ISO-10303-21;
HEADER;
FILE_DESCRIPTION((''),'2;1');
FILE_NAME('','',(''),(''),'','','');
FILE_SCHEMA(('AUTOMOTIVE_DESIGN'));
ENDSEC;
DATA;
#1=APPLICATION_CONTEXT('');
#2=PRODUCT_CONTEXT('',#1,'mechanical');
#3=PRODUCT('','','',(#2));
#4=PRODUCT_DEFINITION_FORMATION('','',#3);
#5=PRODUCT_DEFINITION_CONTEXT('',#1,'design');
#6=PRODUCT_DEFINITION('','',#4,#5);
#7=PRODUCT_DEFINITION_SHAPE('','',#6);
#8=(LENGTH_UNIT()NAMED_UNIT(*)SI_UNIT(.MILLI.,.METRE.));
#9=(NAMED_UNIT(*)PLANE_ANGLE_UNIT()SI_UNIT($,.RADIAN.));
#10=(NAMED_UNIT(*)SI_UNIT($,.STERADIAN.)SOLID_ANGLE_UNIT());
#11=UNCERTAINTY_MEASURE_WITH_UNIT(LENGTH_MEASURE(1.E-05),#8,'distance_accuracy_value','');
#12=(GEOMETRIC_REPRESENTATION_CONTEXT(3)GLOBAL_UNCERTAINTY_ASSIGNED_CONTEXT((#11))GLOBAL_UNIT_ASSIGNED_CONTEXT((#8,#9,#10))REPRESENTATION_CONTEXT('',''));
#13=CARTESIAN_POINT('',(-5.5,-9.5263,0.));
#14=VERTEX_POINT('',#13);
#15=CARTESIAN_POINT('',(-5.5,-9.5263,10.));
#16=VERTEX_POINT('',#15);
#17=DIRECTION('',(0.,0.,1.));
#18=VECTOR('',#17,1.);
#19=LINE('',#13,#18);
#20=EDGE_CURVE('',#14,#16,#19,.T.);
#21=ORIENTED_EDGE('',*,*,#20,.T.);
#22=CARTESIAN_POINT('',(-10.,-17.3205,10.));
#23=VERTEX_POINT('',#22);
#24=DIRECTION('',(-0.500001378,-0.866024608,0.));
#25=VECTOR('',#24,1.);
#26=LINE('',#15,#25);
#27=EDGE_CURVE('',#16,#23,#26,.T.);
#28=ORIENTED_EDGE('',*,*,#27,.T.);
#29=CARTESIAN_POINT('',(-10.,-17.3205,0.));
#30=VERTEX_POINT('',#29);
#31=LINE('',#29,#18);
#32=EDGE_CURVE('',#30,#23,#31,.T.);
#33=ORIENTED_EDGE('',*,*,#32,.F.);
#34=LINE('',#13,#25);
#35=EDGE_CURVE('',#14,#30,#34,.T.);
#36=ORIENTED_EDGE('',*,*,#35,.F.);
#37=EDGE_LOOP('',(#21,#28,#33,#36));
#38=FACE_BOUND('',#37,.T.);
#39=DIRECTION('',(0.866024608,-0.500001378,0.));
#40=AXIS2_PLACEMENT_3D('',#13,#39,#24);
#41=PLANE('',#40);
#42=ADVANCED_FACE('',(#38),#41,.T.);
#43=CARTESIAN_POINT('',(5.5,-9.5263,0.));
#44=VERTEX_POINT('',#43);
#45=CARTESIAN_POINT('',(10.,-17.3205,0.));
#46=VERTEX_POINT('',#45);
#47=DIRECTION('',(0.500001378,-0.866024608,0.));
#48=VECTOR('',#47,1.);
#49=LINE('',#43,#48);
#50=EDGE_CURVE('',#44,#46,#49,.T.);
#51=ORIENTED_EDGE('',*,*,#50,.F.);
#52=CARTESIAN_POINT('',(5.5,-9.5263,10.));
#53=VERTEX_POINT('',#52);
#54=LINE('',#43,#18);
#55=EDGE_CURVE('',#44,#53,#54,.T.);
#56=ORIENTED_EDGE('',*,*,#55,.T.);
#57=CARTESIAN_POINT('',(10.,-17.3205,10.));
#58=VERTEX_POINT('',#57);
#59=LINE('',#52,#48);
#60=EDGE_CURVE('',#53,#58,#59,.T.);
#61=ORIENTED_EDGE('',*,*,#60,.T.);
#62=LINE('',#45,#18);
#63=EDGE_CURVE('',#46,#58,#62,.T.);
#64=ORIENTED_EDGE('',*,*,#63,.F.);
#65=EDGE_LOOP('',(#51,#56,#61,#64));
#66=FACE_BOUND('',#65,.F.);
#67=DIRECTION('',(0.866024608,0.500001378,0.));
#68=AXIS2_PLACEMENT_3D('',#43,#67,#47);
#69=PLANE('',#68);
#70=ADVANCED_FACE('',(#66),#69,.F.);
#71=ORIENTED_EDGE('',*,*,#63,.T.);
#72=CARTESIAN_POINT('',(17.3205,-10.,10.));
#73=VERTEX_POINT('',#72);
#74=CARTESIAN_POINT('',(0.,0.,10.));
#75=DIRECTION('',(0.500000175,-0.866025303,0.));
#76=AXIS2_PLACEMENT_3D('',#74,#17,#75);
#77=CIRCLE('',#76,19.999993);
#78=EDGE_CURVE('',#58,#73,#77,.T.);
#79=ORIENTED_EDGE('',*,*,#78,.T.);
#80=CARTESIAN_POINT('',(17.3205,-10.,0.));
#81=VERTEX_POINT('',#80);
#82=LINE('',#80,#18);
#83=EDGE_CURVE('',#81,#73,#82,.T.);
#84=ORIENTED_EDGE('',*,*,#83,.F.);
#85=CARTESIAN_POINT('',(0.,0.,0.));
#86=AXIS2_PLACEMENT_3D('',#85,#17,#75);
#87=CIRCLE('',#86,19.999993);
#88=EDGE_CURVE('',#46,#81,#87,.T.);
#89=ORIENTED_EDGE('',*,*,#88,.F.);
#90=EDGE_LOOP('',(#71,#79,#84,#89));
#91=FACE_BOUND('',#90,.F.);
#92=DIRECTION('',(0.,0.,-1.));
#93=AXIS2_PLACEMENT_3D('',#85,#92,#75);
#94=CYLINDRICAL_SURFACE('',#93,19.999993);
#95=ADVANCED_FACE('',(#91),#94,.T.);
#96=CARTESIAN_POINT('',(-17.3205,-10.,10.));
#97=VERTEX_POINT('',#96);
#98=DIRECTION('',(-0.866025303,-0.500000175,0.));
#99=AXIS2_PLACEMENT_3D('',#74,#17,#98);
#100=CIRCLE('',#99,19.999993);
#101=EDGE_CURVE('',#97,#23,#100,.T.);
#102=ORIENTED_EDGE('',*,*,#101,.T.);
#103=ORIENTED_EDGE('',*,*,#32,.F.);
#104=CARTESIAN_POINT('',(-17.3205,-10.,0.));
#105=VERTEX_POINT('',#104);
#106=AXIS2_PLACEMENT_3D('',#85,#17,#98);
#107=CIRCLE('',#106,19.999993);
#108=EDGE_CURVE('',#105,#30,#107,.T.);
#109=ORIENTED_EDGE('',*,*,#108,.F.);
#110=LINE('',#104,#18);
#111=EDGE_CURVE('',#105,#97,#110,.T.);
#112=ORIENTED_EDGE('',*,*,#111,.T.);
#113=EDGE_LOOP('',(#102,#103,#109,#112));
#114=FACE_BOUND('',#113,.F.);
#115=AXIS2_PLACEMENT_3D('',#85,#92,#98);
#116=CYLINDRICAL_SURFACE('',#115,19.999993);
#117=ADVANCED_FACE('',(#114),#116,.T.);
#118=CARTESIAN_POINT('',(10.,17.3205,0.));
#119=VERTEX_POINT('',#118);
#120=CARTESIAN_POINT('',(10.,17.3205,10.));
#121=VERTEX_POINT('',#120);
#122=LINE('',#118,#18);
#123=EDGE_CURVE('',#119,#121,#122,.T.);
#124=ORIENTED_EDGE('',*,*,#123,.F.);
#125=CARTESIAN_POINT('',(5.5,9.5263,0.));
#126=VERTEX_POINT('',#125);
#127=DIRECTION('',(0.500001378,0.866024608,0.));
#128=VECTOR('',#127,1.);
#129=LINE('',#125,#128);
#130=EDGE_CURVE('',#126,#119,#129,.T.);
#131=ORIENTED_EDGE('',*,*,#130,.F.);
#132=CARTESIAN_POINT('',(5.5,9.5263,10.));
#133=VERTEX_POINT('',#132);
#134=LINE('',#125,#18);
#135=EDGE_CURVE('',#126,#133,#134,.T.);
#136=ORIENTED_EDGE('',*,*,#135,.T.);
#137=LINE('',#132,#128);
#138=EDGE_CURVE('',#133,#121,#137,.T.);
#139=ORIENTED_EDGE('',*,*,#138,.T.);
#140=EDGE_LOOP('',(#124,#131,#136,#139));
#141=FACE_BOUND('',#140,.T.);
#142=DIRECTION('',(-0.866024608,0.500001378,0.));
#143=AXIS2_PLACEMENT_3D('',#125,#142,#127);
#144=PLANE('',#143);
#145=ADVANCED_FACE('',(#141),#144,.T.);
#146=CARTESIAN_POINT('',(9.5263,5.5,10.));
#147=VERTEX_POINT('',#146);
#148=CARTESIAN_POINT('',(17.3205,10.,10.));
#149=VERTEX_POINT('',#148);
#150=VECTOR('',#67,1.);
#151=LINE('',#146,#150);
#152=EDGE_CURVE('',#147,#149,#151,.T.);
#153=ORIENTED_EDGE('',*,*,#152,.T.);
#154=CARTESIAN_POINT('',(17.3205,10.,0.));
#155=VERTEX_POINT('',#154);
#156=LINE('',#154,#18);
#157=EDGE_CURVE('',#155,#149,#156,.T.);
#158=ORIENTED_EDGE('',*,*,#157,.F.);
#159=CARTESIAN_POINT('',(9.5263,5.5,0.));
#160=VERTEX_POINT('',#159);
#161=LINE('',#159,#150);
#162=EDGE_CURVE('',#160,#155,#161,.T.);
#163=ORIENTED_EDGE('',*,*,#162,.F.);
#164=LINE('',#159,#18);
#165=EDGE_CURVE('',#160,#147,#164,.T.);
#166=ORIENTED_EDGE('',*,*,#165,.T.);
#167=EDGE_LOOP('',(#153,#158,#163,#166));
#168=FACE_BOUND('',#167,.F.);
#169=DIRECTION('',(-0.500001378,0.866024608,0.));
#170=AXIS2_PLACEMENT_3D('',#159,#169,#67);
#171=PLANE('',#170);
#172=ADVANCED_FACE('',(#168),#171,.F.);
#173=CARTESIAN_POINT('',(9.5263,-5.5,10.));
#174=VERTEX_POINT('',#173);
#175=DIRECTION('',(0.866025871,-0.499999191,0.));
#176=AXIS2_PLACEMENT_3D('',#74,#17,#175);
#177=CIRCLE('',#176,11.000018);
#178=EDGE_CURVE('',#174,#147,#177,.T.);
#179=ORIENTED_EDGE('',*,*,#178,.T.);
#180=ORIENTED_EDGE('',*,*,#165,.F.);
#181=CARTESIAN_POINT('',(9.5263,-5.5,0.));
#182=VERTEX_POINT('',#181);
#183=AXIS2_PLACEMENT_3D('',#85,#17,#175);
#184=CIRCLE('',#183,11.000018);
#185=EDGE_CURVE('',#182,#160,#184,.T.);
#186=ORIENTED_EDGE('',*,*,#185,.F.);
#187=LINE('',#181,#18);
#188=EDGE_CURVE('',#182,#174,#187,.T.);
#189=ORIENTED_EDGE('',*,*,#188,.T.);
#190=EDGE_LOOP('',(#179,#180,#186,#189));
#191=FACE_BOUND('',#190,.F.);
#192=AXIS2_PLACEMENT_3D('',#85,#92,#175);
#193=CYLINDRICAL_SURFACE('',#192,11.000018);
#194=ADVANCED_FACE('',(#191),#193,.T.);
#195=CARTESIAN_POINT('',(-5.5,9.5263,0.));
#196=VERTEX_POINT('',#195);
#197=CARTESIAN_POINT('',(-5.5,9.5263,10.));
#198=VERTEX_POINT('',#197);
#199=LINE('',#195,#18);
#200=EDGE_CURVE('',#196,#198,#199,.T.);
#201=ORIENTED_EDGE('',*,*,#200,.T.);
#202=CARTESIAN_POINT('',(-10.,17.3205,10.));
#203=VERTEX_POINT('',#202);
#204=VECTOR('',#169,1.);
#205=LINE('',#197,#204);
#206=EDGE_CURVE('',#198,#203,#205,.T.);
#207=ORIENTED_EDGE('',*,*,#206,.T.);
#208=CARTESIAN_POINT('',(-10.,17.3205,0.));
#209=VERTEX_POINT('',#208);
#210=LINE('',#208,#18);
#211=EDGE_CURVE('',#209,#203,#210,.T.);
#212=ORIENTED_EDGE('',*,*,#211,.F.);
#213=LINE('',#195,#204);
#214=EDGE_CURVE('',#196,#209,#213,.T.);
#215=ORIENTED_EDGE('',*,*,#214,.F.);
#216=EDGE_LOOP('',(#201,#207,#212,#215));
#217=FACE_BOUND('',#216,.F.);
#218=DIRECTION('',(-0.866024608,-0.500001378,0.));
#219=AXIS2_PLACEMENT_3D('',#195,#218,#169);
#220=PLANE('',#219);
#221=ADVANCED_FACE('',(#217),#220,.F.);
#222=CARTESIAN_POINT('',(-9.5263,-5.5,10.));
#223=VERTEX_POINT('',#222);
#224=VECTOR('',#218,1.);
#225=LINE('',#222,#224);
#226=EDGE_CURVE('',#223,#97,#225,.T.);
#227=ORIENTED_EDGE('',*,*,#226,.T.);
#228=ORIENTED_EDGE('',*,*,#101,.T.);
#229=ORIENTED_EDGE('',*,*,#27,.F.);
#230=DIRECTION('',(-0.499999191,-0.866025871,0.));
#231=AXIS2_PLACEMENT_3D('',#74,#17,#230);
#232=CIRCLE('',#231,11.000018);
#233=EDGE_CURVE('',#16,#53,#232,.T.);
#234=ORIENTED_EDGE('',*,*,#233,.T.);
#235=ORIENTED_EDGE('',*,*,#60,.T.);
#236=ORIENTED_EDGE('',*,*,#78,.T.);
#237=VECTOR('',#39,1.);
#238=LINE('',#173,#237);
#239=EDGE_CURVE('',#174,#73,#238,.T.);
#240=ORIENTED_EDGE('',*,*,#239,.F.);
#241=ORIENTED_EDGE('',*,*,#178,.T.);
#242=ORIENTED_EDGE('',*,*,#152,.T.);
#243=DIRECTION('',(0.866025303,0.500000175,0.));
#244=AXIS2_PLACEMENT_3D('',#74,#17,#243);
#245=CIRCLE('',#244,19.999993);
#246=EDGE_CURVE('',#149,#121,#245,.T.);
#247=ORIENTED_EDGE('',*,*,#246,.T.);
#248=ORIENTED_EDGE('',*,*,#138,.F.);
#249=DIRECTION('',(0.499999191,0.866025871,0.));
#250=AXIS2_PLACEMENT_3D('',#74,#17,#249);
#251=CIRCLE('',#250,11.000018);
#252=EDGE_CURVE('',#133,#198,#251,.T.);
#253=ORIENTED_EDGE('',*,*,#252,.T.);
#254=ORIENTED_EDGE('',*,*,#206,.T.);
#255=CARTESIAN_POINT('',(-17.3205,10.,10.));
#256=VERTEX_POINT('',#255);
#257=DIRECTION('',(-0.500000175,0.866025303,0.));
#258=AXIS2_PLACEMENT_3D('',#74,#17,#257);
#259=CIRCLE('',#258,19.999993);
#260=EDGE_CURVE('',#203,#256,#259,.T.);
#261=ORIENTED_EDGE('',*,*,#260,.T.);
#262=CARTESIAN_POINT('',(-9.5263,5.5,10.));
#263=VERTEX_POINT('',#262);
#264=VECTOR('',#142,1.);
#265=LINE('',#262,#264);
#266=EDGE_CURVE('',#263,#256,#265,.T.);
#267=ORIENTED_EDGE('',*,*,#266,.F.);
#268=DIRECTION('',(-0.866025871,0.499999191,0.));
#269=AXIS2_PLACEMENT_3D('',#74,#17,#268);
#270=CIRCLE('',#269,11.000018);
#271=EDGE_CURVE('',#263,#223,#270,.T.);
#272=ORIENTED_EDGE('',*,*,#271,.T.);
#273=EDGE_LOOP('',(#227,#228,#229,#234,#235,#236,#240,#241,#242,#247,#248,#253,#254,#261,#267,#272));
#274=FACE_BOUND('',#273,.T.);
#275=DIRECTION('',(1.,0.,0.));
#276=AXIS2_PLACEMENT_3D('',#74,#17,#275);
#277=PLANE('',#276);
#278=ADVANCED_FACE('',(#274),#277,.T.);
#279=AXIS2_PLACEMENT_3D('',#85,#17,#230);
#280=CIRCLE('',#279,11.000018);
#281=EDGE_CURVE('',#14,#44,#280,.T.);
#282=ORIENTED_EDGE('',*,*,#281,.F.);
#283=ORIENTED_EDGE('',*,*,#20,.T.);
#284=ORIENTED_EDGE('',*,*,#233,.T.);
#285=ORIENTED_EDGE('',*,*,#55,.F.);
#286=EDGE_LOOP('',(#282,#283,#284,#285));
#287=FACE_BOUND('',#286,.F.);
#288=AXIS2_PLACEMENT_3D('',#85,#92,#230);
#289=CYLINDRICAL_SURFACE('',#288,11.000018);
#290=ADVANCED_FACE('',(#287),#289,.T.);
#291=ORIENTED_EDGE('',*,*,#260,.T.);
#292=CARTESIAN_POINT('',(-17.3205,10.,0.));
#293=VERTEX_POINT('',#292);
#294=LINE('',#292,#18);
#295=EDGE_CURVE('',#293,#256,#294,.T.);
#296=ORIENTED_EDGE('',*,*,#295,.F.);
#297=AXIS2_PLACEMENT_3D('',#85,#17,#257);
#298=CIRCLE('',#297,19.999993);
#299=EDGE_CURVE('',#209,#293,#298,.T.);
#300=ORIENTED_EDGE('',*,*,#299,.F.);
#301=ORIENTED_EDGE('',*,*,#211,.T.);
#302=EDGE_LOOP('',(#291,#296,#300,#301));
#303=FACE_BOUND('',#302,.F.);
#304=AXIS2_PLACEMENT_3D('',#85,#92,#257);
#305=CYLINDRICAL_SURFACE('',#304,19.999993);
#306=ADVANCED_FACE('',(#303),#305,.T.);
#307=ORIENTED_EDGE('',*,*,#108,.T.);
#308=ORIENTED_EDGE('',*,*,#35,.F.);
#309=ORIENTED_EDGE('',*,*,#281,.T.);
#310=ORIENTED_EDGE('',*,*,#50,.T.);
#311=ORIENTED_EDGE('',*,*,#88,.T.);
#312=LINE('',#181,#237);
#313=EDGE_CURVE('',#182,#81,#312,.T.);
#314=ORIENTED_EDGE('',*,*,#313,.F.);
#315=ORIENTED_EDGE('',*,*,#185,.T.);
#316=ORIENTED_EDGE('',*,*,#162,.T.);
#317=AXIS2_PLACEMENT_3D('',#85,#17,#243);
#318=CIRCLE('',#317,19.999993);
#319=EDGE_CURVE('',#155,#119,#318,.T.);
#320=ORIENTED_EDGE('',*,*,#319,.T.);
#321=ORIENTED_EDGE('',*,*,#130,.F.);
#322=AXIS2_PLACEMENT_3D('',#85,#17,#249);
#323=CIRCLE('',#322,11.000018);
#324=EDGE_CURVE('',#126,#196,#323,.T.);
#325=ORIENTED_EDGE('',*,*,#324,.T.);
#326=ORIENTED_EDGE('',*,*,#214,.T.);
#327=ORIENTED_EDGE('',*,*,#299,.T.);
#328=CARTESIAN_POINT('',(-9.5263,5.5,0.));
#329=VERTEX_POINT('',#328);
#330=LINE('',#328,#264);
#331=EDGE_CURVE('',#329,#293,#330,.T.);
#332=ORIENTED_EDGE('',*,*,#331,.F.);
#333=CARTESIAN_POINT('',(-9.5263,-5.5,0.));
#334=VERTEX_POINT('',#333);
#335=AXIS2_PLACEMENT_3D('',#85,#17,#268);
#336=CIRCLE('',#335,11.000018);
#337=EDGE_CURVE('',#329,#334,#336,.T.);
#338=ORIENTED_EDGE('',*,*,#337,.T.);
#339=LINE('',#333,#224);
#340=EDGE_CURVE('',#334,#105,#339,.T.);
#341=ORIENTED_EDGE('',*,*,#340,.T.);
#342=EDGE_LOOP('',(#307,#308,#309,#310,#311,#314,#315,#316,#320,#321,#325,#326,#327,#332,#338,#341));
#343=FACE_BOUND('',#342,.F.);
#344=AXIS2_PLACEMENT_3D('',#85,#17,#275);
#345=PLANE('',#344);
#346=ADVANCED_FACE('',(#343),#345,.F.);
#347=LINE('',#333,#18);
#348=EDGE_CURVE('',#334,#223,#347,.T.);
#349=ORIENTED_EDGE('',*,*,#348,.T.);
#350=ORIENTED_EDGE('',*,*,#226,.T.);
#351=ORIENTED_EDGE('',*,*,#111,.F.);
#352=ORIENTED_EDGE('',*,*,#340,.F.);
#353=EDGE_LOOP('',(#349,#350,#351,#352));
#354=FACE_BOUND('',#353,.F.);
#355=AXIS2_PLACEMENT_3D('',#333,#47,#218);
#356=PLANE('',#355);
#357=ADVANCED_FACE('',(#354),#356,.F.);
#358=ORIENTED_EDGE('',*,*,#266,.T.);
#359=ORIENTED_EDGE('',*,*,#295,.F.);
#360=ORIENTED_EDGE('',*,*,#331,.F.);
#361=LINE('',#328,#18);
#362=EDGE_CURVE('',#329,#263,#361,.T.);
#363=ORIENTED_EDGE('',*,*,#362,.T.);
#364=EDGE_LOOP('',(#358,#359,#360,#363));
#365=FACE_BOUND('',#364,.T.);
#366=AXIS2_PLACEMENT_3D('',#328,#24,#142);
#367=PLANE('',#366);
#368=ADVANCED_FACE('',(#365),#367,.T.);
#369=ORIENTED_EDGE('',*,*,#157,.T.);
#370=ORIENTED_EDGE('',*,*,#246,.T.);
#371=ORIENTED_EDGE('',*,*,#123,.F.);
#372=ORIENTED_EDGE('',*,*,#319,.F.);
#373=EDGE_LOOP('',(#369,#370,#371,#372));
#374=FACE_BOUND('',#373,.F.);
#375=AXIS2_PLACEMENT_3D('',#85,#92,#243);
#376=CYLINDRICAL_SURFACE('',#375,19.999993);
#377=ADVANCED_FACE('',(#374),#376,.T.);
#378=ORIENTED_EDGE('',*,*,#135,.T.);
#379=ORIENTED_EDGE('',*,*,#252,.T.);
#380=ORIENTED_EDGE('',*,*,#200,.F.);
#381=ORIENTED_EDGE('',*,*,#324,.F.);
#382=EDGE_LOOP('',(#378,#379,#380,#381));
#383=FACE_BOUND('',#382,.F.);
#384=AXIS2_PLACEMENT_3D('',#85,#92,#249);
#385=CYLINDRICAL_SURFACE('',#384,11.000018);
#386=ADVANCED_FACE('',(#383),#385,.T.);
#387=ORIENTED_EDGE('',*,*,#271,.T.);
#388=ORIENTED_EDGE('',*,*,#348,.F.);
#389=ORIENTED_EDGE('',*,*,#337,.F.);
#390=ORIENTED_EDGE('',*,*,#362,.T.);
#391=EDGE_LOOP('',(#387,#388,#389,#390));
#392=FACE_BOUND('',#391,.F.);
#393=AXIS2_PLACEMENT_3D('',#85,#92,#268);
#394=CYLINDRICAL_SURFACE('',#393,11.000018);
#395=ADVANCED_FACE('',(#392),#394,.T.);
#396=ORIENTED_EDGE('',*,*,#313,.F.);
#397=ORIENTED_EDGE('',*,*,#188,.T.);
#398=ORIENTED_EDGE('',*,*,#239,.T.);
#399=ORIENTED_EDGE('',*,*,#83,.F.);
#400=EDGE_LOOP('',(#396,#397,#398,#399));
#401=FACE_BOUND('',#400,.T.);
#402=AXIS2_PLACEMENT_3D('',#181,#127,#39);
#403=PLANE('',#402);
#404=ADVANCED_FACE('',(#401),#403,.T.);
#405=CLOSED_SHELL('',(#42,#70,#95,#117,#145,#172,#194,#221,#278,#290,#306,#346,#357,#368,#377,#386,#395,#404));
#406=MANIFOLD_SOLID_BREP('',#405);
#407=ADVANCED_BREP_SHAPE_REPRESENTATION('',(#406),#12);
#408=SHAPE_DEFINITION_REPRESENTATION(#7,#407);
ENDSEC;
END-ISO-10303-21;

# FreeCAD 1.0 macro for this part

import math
import FreeCAD as App
import Part
import Sketcher
from FreeCAD import Vector
Q = App.Units.Quantity

doc = App.newDocument("Part")
params = doc.addObject("Spreadsheet::Sheet", "Params")
for row, (alias, value) in enumerate([
    ("sketch1_radius", "11 mm"),
    ("sketch1_radius2", "20 mm"),
    ("pad1_length", "10 mm"),
], start=1):
    params.set(f"A{row}", alias)
    params.set(f"B{row}", "=" + value)
    params.setAlias(f"B{row}", alias)

body = doc.addObject("PartDesign::Body", "Body")

# Sketch on XY plane
sketch1 = body.newObject("Sketcher::SketchObject", "Sketch")
sketch1.AttachmentSupport = (doc.getObject("XY_Plane"), [""])
sketch1.MapMode = "FlatFace"
sketch1.addGeometry([
    Part.LineSegment(Vector(-17, 10, 0), Vector(-10, 6, 0)),  # 0
    Part.ArcOfCircle(Part.Circle(Vector(0, 0, 0), Vector(0, 0, 1), 11), math.radians(150), math.radians(210)),  # 1
    Part.LineSegment(Vector(-10, -6, 0), Vector(-17, -10, 0)),  # 2
    Part.ArcOfCircle(Part.Circle(Vector(0, 0, 0), Vector(0, 0, 1), 20), math.radians(-150), math.radians(-120)),  # 3
    Part.LineSegment(Vector(-10, -17, 0), Vector(-6, -10, 0)),  # 4
    Part.ArcOfCircle(Part.Circle(Vector(0, 0, 0), Vector(0, 0, 1), 11), math.radians(-120), math.radians(-60)),  # 5
    Part.LineSegment(Vector(6, -10, 0), Vector(10, -17, 0)),  # 6
    Part.ArcOfCircle(Part.Circle(Vector(0, 0, 0), Vector(0, 0, 1), 20), math.radians(-60), math.radians(-30)),  # 7
    Part.LineSegment(Vector(17, -10, 0), Vector(10, -6, 0)),  # 8
    Part.ArcOfCircle(Part.Circle(Vector(0, 0, 0), Vector(0, 0, 1), 11), math.radians(-30), math.radians(30)),  # 9
    Part.LineSegment(Vector(10, 6, 0), Vector(17, 10, 0)),  # 10
    Part.ArcOfCircle(Part.Circle(Vector(0, 0, 0), Vector(0, 0, 1), 20), math.radians(30), math.radians(60)),  # 11
    Part.LineSegment(Vector(10, 17, 0), Vector(6, 10, 0)),  # 12
    Part.ArcOfCircle(Part.Circle(Vector(0, 0, 0), Vector(0, 0, 1), 11), math.radians(60), math.radians(120)),  # 13
    Part.LineSegment(Vector(-6, 10, 0), Vector(-10, 17, 0)),  # 14
    Part.ArcOfCircle(Part.Circle(Vector(0, 0, 0), Vector(0, 0, 1), 20), math.radians(120), math.radians(150)),  # 15
], False)
sketch1.addConstraint([
    Sketcher.Constraint("Coincident", 0, 2, 1, 1),
    Sketcher.Constraint("Coincident", 1, 2, 2, 1),
    Sketcher.Constraint("Coincident", 2, 2, 3, 1),
    Sketcher.Constraint("Coincident", 3, 2, 4, 1),
    Sketcher.Constraint("Coincident", 4, 2, 5, 1),
    Sketcher.Constraint("Coincident", 5, 2, 6, 1),
    Sketcher.Constraint("Coincident", 6, 2, 7, 1),
    Sketcher.Constraint("Coincident", 7, 2, 8, 1),
    Sketcher.Constraint("Coincident", 8, 2, 9, 1),
    Sketcher.Constraint("Coincident", 9, 2, 10, 1),
    Sketcher.Constraint("Coincident", 10, 2, 11, 1),
    Sketcher.Constraint("Coincident", 11, 2, 12, 1),
    Sketcher.Constraint("Coincident", 12, 2, 13, 1),
    Sketcher.Constraint("Coincident", 13, 2, 14, 1),
    Sketcher.Constraint("Coincident", 14, 2, 15, 1),
    Sketcher.Constraint("Coincident", 15, 2, 0, 1),
    Sketcher.Constraint("Coincident", 1, 3, -1, 1),
    Sketcher.Constraint("Coincident", 3, 3, -1, 1),
    Sketcher.Constraint("Coincident", 5, 3, -1, 1),
    Sketcher.Constraint("Coincident", 7, 3, -1, 1),
    Sketcher.Constraint("Coincident", 9, 3, -1, 1),
    Sketcher.Constraint("Coincident", 11, 3, -1, 1),
    Sketcher.Constraint("Coincident", 13, 3, -1, 1),
    Sketcher.Constraint("Coincident", 15, 3, -1, 1),
    Sketcher.Constraint("Equal", 1, 5),
    Sketcher.Constraint("Equal", 3, 7),
    Sketcher.Constraint("Equal", 5, 9),
    Sketcher.Constraint("Equal", 7, 11),
    Sketcher.Constraint("Equal", 9, 13),
    Sketcher.Constraint("Equal", 11, 15),
    Sketcher.Constraint("Perpendicular", 0, 4),
    Sketcher.Constraint("Perpendicular", 2, 6),
    Sketcher.Constraint("Perpendicular", 4, 8),
    Sketcher.Constraint("Perpendicular", 6, 10),
    Sketcher.Constraint("Perpendicular", 8, 12),
    Sketcher.Constraint("Perpendicular", 10, 14),
    Sketcher.Constraint("Horizontal", 4, 2, 5, 2),
    Sketcher.Constraint("Horizontal", 3, 2, 6, 2),
    Sketcher.Constraint("Horizontal", 2, 2, 7, 2),
    Sketcher.Constraint("Horizontal", 0, 2, 9, 2),
    Sketcher.Constraint("Horizontal", 12, 2, 13, 2),
    Sketcher.Constraint("Vertical", 0, 2, 1, 2),
    Sketcher.Constraint("Vertical", 6, 2, 11, 2),
    Sketcher.Constraint("Angle", 2, Q("-150 deg")),
    Sketcher.Constraint("Radius", 1, 11.0),
    Sketcher.Constraint("Radius", 3, 20.0),
    Sketcher.Constraint("DistanceY", 2, 2, -1, 1, 10.0),
    Sketcher.Constraint("DistanceX", 3, 2, -1, 1, 10.0),
])
sketch1.setExpression("Constraints[44]", "Params.sketch1_radius")
sketch1.setExpression("Constraints[45]", "Params.sketch1_radius2")
pad1 = body.newObject("PartDesign::Pad", "Pad")
pad1.Profile = sketch1
pad1.setExpression("Length", "Params.pad1_length")

doc.recompute()
